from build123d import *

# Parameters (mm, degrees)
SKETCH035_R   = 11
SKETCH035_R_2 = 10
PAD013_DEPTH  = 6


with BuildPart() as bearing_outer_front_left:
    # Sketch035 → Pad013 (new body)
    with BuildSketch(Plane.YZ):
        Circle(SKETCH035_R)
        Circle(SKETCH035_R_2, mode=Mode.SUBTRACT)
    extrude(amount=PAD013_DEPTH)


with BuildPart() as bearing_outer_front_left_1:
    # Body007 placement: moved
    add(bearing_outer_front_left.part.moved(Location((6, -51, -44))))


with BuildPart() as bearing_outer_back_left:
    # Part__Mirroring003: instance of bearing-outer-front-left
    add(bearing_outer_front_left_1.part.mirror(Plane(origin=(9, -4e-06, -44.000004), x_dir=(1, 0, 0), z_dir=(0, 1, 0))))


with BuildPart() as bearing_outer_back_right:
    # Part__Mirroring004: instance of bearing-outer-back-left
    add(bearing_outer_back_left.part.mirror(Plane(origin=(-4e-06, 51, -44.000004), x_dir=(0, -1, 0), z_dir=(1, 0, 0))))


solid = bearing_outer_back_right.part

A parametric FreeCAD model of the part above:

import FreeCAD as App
import Part
import Sketcher
from FreeCAD import Vector

doc = App.newDocument("Part")
body = doc.addObject("PartDesign::Body", "Body")

# Sketch on YZ plane
sketch1 = body.newObject("Sketcher::SketchObject", "Sketch")
sketch1.AttachmentSupport = (doc.getObject("YZ_Plane"), [""])
sketch1.MapMode = "FlatFace"
sketch1.addGeometry([
    Part.Circle(Vector(0, 0, 0), Vector(0, 0, 1), 11),
    Part.Circle(Vector(0, 0, 0), Vector(0, 0, 1), 10),
], False)
sketch1.addConstraint([
    Sketcher.Constraint("Coincident", 0, 3, -1, 1),
    Sketcher.Constraint("Coincident", 1, 3, -1, 1),
    Sketcher.Constraint("Diameter", 0, 22.0),
    Sketcher.Constraint("Diameter", 1, 20.0),
])
pad1 = body.newObject("PartDesign::Pad", "Pad")
pad1.Profile = sketch1
pad1.Length = 6
body2 = doc.addObject("PartDesign::Body", "Body001")
doc.recompute()

body.Placement = App.Placement(Vector(6, -51, -44), App.Rotation(Vector(0, 0, 1), 0))
boolean = body2.newObject("PartDesign::Boolean", "Boolean")
boolean.Type = "Fuse"
boolean.addObjects([body])
body3 = doc.addObject("PartDesign::Body", "Body002")
doc.recompute()

mirroring = doc.addObject("Part::Mirroring", "Mirroring")
mirroring.Source = body2
mirroring.Base = Vector(9, -0.000004, -44.000004)
mirroring.Normal = Vector(0, 1, 0)
body3.BaseFeature = mirroring
doc.recompute()
body4 = doc.addObject("PartDesign::Body", "Body003")
doc.recompute()

mirroring2 = doc.addObject("Part::Mirroring", "Mirroring001")
mirroring2.Source = body3
mirroring2.Base = Vector(-0.000004, 51, -44.000004)
mirroring2.Normal = Vector(1, 0, 0)
body4.BaseFeature = mirroring2
doc.recompute()
body2.Visibility = False
body3.Visibility = False
mirroring.Visibility = False
mirroring2.Visibility = False

doc.recompute()
